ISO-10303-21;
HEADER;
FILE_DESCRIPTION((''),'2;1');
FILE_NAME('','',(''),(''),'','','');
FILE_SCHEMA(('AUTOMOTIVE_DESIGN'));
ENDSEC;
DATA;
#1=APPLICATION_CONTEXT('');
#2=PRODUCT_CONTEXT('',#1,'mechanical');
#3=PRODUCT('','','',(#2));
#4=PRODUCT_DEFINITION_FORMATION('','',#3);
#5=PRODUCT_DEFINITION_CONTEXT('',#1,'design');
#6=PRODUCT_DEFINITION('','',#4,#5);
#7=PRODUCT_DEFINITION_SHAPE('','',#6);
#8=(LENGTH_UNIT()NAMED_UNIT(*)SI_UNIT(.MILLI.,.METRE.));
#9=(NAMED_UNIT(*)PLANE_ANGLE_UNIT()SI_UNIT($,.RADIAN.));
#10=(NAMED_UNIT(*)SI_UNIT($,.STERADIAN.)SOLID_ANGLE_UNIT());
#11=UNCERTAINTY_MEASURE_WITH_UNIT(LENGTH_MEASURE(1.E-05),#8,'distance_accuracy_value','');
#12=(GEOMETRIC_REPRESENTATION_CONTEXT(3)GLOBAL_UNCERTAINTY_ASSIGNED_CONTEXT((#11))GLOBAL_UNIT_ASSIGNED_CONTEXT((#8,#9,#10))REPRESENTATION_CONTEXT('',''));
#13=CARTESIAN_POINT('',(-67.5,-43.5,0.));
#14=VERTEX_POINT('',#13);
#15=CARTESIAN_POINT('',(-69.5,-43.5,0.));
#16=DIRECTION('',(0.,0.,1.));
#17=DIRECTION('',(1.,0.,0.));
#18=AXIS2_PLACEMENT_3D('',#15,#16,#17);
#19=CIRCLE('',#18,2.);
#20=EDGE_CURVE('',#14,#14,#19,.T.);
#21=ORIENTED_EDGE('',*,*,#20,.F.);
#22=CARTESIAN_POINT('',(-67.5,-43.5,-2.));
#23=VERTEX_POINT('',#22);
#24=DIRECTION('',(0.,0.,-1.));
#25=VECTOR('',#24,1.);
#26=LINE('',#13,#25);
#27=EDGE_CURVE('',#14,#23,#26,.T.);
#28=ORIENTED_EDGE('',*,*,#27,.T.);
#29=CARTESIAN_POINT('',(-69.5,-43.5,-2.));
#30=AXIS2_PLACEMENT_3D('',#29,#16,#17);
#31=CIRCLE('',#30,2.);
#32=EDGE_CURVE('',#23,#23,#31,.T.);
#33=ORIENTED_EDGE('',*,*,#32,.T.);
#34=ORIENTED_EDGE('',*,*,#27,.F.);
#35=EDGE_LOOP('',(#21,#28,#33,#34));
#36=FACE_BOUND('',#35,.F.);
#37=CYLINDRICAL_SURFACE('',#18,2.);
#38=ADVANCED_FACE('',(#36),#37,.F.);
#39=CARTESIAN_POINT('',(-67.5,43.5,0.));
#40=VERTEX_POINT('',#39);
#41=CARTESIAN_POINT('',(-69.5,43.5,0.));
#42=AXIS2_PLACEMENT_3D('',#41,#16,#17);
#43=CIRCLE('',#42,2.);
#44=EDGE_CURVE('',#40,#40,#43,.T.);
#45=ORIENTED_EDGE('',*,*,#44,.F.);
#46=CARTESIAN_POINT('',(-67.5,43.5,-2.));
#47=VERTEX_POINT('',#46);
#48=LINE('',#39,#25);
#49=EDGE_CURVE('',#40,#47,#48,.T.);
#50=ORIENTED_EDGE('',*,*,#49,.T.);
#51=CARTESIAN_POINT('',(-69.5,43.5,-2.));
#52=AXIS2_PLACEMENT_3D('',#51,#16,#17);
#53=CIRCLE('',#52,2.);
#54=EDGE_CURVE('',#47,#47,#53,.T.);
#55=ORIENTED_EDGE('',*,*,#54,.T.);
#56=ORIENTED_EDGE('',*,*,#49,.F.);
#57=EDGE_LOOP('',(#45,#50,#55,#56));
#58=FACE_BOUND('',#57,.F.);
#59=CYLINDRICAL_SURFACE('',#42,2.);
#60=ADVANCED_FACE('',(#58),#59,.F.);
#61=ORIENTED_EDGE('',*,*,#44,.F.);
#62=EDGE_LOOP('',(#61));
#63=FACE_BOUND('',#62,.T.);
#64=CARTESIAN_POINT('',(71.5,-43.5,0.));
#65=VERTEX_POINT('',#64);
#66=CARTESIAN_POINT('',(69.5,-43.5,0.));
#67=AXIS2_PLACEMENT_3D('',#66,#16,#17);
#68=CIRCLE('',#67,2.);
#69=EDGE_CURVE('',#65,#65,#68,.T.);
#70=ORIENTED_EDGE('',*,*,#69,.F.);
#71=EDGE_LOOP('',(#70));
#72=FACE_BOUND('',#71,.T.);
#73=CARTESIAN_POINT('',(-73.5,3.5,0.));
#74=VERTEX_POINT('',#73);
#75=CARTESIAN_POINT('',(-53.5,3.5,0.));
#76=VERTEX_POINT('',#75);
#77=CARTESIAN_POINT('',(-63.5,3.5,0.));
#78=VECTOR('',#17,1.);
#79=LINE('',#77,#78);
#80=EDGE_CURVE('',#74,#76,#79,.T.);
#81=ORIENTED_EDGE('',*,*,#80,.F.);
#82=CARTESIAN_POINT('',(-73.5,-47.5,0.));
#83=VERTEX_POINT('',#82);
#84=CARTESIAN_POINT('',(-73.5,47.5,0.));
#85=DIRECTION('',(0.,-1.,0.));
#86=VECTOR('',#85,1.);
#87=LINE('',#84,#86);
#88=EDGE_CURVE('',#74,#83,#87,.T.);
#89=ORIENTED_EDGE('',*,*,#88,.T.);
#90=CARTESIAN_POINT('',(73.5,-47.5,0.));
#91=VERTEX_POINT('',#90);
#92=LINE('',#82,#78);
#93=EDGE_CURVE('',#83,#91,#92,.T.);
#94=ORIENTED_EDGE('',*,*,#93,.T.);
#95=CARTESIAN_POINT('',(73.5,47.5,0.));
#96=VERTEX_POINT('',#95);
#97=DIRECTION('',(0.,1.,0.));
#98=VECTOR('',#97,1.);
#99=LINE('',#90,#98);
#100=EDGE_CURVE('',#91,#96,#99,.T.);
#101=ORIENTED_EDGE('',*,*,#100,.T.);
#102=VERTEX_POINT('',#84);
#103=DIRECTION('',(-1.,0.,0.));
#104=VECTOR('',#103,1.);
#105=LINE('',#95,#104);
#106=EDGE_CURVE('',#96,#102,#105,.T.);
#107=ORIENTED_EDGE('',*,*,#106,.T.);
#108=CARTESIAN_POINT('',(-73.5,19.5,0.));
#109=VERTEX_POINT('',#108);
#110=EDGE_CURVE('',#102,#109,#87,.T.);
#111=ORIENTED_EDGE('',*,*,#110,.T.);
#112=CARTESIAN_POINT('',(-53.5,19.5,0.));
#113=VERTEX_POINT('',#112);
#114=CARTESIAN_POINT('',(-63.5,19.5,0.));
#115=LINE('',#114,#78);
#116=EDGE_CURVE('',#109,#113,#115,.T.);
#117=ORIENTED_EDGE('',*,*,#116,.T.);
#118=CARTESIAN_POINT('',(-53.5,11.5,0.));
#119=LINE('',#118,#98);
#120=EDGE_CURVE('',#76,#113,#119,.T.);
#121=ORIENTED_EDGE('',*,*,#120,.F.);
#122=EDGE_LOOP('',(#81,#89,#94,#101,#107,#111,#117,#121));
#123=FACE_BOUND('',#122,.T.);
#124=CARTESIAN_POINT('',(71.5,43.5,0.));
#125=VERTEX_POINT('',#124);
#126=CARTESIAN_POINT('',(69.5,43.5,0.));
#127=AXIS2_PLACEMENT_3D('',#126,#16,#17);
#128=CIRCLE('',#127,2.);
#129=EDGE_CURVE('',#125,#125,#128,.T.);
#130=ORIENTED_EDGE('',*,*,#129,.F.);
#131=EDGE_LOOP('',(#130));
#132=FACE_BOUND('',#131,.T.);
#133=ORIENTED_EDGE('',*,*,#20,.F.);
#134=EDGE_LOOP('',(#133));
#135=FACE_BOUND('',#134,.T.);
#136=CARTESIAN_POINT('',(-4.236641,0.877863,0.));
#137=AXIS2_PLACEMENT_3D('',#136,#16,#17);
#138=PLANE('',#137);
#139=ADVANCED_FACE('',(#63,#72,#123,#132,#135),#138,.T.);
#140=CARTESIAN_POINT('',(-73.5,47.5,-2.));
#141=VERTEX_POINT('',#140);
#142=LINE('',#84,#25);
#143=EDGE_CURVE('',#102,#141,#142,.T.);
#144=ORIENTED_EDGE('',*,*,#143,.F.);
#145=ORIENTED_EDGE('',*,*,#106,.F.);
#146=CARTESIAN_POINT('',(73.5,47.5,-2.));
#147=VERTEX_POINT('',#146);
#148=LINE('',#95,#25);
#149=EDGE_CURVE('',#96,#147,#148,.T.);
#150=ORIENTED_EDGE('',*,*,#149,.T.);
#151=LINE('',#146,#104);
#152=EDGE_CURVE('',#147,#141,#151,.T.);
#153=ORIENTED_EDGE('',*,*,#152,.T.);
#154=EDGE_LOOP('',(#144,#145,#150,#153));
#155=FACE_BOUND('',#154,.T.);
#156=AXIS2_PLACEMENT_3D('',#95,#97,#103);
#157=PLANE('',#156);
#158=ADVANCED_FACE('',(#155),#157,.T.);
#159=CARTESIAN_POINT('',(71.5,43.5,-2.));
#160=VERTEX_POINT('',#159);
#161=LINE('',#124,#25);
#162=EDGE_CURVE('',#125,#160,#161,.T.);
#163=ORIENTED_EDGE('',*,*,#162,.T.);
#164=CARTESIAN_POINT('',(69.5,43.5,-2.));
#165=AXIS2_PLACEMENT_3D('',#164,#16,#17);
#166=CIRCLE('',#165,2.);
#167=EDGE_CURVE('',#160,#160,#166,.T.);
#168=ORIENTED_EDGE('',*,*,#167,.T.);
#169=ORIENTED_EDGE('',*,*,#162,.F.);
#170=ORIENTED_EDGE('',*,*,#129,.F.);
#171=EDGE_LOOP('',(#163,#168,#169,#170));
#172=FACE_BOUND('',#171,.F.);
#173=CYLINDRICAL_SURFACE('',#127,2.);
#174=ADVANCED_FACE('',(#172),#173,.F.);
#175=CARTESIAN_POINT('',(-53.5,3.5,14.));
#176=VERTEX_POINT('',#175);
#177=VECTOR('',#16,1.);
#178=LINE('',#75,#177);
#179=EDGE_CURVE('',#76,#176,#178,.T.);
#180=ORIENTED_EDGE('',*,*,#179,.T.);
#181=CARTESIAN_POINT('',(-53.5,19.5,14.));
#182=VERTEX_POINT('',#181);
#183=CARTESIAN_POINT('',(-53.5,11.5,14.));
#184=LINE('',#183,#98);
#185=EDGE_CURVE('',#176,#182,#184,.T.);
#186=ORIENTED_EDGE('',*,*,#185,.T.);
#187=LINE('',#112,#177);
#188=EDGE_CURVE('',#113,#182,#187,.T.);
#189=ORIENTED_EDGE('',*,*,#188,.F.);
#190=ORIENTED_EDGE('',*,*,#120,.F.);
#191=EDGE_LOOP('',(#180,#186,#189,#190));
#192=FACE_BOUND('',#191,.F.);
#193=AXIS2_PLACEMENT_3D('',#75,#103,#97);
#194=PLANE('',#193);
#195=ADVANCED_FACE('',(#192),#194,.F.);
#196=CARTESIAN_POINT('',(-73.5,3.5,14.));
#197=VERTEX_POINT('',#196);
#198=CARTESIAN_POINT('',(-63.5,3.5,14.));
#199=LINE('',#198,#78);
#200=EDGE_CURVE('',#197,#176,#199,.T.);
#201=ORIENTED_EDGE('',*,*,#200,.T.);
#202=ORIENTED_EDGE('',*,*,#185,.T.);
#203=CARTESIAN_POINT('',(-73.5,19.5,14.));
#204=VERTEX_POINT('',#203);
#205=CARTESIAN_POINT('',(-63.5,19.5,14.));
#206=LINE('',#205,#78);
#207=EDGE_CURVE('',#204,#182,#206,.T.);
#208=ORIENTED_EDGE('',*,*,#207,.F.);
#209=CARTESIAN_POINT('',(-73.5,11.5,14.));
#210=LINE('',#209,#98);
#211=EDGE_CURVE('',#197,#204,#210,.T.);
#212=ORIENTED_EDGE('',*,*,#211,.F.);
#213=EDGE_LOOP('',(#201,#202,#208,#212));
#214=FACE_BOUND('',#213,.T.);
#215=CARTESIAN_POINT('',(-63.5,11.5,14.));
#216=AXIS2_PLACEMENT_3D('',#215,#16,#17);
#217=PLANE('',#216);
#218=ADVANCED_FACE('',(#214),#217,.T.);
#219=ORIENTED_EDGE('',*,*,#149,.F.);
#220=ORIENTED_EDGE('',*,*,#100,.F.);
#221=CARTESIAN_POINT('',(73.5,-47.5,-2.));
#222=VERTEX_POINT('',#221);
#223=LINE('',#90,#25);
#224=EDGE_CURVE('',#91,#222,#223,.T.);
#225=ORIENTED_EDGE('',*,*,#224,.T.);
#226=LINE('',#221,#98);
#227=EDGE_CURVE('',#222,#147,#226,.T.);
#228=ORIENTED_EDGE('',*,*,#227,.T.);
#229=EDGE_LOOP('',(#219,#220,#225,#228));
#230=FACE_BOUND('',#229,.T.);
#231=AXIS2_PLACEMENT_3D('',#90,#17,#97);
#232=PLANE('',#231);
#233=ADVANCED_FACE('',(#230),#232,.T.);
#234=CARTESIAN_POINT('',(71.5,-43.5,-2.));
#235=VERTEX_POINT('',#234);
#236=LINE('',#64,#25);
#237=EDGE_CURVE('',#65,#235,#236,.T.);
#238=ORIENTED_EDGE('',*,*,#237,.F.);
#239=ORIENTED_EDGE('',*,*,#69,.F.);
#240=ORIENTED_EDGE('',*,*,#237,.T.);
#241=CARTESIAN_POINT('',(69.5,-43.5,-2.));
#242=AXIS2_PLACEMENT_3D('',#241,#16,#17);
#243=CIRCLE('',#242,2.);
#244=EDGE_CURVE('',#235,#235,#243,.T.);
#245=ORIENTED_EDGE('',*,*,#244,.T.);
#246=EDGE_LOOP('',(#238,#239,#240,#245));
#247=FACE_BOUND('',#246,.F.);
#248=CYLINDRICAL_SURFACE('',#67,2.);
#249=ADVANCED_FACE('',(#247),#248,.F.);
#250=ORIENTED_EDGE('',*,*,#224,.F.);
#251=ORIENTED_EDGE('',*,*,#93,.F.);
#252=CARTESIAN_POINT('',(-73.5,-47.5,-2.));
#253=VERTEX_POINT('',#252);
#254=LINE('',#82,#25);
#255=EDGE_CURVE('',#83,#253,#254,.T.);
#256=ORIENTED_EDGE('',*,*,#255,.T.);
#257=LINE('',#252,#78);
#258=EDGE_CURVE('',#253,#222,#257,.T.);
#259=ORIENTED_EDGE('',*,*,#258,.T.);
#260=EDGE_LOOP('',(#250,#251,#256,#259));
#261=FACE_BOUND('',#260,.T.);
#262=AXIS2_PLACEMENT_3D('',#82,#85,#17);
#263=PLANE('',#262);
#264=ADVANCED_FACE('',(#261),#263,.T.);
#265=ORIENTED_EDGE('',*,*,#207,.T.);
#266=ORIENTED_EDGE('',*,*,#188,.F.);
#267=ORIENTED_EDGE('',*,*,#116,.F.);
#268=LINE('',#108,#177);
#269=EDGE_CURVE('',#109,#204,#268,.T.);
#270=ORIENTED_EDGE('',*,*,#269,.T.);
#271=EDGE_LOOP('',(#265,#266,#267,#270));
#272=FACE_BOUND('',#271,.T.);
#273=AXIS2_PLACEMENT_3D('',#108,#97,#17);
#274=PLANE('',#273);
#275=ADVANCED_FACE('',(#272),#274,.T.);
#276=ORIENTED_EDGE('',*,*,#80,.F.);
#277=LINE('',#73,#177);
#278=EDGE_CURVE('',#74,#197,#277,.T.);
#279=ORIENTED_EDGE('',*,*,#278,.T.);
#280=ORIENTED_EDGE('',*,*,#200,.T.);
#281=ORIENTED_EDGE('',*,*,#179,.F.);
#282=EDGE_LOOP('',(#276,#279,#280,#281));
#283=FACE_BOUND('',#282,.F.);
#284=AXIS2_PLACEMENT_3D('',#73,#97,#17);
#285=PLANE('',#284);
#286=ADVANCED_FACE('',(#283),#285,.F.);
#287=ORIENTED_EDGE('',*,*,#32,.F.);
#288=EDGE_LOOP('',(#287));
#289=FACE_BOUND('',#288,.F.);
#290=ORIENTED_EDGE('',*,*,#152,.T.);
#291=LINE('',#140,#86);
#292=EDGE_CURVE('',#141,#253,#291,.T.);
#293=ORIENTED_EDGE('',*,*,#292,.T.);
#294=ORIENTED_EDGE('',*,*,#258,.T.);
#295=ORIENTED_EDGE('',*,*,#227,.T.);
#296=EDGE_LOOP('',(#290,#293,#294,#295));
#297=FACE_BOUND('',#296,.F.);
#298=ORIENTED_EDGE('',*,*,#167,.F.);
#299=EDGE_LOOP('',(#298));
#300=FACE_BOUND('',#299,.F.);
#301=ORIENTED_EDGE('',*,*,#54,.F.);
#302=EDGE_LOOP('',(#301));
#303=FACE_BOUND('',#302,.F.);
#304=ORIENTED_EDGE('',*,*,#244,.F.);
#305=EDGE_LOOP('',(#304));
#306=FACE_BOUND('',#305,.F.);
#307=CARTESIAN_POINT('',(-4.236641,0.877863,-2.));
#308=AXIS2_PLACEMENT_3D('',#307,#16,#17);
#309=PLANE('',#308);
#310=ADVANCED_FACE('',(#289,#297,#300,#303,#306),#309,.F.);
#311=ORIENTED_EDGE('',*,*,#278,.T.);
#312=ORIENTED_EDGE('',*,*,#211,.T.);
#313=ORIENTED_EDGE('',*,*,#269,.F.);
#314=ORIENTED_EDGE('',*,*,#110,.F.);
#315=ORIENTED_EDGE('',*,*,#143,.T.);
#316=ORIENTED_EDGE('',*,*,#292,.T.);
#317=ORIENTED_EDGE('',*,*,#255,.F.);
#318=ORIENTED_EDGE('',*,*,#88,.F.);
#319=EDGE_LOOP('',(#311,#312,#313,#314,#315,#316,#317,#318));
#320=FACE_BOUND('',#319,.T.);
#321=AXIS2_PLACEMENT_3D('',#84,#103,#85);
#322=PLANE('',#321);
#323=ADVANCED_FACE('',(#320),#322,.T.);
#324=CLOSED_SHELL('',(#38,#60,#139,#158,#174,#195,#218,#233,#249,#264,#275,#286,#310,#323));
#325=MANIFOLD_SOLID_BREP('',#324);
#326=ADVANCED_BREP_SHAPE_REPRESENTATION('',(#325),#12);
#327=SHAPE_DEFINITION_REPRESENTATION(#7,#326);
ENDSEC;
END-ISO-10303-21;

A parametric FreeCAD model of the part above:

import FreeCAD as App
import Part
import Sketcher


def add_polygon(sketch, points):
    """Adds a closed chain of lines whose ends are joined by coincident constraints."""
    first, n = sketch.GeometryCount, len(points)
    for a, b in zip(points, points[1:] + points[:1]):
        sketch.addGeometry(Part.LineSegment(App.Vector(*a, 0), App.Vector(*b, 0)), False)
    for i in range(n):
        sketch.addConstraint(Sketcher.Constraint("Coincident", first + i, 2, first + (i + 1) % n, 1))

doc = App.newDocument("Part")
body = doc.addObject("PartDesign::Body", "Body")

# Sketch on XY plane
sketch1 = doc.addObject("Sketcher::SketchObject", "Sketch")
body.addObject(sketch1)
sketch1.AttachmentSupport = (doc.XY_Plane, [""])
sketch1.MapMode = "FlatFace"
add_polygon(sketch1, [(-73.5, -47.5), (73.5, -47.5), (73.5, 47.5), (-73.5, 47.5)])  # lines 0-3
sketch1.addGeometry(Part.Circle(App.Vector(-69.5, -43.5, 0), App.Vector(0, 0, 1), 2), False)  # 4
sketch1.addGeometry(Part.Circle(App.Vector(69.5, -43.5, 0), App.Vector(0, 0, 1), 2), False)  # 5
sketch1.addGeometry(Part.Circle(App.Vector(-69.5, 43.5, 0), App.Vector(0, 0, 1), 2), False)  # 6
sketch1.addGeometry(Part.Circle(App.Vector(69.5, 43.5, 0), App.Vector(0, 0, 1), 2), False)  # 7
sketch1.addConstraint(Sketcher.Constraint("Horizontal", 0))
sketch1.addConstraint(Sketcher.Constraint("Vertical", 1))
sketch1.addConstraint(Sketcher.Constraint("Horizontal", 2))
sketch1.addConstraint(Sketcher.Constraint("Vertical", 3))
sketch1.addConstraint(Sketcher.Constraint("Equal", 4, 5))
sketch1.addConstraint(Sketcher.Constraint("Equal", 5, 6))
sketch1.addConstraint(Sketcher.Constraint("Equal", 6, 7))
sketch1.addConstraint(Sketcher.Constraint("Symmetric", 5, 3, 6, 3, -1, 1))
sketch1.addConstraint(Sketcher.Constraint("Symmetric", 4, 3, 7, 3, -1, 1))
sketch1.addConstraint(Sketcher.Constraint("Symmetric", 0, 2, 2, 2, -1, 1))
sketch1.addConstraint(Sketcher.Constraint("Symmetric", 4, 3, 5, 3, -2))
sketch1.addConstraint(Sketcher.Constraint("Diameter", 4, 4.0))
sketch1.addConstraint(Sketcher.Constraint("DistanceX", 0, 1, 0, 2, 147.0))
sketch1.addConstraint(Sketcher.Constraint("DistanceY", 1, 1, 1, 2, 95.0))
sketch1.addConstraint(Sketcher.Constraint("DistanceX", 4, 3, 5, 3, 139.0))
sketch1.addConstraint(Sketcher.Constraint("DistanceY", 4, 3, 6, 3, 87.0))
pad1 = doc.addObject("PartDesign::Pad", "Pad")
body.addObject(pad1)
pad1.Profile = sketch1
pad1.Length = 2
pad1.Reversed = True

# Sketch on XY plane
sketch2 = doc.addObject("Sketcher::SketchObject", "Sketch001")
body.addObject(sketch2)
sketch2.AttachmentSupport = (doc.XY_Plane, [""])
sketch2.MapMode = "FlatFace"
add_polygon(sketch2, [(-74, 20), (-74, 4), (-54, 4), (-54, 20)])  # lines 0-3
sketch2.addConstraint(Sketcher.Constraint("Vertical", 0))
sketch2.addConstraint(Sketcher.Constraint("Horizontal", 1))
sketch2.addConstraint(Sketcher.Constraint("Vertical", 2))
sketch2.addConstraint(Sketcher.Constraint("Horizontal", 3))
sketch2.addConstraint(Sketcher.Constraint("DistanceX", 1, 1, 1, 2, 20.0))
sketch2.addConstraint(Sketcher.Constraint("DistanceY", 0, 2, 0, 1, 16.0))
sketch2.addConstraint(Sketcher.Constraint("DistanceX", 0, 2, -1, 1, 73.5))
sketch2.addConstraint(Sketcher.Constraint("DistanceY", -1, 1, 0, 2, 3.5))
pad2 = doc.addObject("PartDesign::Pad", "Pad001")
body.addObject(pad2)
pad2.Profile = sketch2
pad2.Length = 14

doc.recompute()
